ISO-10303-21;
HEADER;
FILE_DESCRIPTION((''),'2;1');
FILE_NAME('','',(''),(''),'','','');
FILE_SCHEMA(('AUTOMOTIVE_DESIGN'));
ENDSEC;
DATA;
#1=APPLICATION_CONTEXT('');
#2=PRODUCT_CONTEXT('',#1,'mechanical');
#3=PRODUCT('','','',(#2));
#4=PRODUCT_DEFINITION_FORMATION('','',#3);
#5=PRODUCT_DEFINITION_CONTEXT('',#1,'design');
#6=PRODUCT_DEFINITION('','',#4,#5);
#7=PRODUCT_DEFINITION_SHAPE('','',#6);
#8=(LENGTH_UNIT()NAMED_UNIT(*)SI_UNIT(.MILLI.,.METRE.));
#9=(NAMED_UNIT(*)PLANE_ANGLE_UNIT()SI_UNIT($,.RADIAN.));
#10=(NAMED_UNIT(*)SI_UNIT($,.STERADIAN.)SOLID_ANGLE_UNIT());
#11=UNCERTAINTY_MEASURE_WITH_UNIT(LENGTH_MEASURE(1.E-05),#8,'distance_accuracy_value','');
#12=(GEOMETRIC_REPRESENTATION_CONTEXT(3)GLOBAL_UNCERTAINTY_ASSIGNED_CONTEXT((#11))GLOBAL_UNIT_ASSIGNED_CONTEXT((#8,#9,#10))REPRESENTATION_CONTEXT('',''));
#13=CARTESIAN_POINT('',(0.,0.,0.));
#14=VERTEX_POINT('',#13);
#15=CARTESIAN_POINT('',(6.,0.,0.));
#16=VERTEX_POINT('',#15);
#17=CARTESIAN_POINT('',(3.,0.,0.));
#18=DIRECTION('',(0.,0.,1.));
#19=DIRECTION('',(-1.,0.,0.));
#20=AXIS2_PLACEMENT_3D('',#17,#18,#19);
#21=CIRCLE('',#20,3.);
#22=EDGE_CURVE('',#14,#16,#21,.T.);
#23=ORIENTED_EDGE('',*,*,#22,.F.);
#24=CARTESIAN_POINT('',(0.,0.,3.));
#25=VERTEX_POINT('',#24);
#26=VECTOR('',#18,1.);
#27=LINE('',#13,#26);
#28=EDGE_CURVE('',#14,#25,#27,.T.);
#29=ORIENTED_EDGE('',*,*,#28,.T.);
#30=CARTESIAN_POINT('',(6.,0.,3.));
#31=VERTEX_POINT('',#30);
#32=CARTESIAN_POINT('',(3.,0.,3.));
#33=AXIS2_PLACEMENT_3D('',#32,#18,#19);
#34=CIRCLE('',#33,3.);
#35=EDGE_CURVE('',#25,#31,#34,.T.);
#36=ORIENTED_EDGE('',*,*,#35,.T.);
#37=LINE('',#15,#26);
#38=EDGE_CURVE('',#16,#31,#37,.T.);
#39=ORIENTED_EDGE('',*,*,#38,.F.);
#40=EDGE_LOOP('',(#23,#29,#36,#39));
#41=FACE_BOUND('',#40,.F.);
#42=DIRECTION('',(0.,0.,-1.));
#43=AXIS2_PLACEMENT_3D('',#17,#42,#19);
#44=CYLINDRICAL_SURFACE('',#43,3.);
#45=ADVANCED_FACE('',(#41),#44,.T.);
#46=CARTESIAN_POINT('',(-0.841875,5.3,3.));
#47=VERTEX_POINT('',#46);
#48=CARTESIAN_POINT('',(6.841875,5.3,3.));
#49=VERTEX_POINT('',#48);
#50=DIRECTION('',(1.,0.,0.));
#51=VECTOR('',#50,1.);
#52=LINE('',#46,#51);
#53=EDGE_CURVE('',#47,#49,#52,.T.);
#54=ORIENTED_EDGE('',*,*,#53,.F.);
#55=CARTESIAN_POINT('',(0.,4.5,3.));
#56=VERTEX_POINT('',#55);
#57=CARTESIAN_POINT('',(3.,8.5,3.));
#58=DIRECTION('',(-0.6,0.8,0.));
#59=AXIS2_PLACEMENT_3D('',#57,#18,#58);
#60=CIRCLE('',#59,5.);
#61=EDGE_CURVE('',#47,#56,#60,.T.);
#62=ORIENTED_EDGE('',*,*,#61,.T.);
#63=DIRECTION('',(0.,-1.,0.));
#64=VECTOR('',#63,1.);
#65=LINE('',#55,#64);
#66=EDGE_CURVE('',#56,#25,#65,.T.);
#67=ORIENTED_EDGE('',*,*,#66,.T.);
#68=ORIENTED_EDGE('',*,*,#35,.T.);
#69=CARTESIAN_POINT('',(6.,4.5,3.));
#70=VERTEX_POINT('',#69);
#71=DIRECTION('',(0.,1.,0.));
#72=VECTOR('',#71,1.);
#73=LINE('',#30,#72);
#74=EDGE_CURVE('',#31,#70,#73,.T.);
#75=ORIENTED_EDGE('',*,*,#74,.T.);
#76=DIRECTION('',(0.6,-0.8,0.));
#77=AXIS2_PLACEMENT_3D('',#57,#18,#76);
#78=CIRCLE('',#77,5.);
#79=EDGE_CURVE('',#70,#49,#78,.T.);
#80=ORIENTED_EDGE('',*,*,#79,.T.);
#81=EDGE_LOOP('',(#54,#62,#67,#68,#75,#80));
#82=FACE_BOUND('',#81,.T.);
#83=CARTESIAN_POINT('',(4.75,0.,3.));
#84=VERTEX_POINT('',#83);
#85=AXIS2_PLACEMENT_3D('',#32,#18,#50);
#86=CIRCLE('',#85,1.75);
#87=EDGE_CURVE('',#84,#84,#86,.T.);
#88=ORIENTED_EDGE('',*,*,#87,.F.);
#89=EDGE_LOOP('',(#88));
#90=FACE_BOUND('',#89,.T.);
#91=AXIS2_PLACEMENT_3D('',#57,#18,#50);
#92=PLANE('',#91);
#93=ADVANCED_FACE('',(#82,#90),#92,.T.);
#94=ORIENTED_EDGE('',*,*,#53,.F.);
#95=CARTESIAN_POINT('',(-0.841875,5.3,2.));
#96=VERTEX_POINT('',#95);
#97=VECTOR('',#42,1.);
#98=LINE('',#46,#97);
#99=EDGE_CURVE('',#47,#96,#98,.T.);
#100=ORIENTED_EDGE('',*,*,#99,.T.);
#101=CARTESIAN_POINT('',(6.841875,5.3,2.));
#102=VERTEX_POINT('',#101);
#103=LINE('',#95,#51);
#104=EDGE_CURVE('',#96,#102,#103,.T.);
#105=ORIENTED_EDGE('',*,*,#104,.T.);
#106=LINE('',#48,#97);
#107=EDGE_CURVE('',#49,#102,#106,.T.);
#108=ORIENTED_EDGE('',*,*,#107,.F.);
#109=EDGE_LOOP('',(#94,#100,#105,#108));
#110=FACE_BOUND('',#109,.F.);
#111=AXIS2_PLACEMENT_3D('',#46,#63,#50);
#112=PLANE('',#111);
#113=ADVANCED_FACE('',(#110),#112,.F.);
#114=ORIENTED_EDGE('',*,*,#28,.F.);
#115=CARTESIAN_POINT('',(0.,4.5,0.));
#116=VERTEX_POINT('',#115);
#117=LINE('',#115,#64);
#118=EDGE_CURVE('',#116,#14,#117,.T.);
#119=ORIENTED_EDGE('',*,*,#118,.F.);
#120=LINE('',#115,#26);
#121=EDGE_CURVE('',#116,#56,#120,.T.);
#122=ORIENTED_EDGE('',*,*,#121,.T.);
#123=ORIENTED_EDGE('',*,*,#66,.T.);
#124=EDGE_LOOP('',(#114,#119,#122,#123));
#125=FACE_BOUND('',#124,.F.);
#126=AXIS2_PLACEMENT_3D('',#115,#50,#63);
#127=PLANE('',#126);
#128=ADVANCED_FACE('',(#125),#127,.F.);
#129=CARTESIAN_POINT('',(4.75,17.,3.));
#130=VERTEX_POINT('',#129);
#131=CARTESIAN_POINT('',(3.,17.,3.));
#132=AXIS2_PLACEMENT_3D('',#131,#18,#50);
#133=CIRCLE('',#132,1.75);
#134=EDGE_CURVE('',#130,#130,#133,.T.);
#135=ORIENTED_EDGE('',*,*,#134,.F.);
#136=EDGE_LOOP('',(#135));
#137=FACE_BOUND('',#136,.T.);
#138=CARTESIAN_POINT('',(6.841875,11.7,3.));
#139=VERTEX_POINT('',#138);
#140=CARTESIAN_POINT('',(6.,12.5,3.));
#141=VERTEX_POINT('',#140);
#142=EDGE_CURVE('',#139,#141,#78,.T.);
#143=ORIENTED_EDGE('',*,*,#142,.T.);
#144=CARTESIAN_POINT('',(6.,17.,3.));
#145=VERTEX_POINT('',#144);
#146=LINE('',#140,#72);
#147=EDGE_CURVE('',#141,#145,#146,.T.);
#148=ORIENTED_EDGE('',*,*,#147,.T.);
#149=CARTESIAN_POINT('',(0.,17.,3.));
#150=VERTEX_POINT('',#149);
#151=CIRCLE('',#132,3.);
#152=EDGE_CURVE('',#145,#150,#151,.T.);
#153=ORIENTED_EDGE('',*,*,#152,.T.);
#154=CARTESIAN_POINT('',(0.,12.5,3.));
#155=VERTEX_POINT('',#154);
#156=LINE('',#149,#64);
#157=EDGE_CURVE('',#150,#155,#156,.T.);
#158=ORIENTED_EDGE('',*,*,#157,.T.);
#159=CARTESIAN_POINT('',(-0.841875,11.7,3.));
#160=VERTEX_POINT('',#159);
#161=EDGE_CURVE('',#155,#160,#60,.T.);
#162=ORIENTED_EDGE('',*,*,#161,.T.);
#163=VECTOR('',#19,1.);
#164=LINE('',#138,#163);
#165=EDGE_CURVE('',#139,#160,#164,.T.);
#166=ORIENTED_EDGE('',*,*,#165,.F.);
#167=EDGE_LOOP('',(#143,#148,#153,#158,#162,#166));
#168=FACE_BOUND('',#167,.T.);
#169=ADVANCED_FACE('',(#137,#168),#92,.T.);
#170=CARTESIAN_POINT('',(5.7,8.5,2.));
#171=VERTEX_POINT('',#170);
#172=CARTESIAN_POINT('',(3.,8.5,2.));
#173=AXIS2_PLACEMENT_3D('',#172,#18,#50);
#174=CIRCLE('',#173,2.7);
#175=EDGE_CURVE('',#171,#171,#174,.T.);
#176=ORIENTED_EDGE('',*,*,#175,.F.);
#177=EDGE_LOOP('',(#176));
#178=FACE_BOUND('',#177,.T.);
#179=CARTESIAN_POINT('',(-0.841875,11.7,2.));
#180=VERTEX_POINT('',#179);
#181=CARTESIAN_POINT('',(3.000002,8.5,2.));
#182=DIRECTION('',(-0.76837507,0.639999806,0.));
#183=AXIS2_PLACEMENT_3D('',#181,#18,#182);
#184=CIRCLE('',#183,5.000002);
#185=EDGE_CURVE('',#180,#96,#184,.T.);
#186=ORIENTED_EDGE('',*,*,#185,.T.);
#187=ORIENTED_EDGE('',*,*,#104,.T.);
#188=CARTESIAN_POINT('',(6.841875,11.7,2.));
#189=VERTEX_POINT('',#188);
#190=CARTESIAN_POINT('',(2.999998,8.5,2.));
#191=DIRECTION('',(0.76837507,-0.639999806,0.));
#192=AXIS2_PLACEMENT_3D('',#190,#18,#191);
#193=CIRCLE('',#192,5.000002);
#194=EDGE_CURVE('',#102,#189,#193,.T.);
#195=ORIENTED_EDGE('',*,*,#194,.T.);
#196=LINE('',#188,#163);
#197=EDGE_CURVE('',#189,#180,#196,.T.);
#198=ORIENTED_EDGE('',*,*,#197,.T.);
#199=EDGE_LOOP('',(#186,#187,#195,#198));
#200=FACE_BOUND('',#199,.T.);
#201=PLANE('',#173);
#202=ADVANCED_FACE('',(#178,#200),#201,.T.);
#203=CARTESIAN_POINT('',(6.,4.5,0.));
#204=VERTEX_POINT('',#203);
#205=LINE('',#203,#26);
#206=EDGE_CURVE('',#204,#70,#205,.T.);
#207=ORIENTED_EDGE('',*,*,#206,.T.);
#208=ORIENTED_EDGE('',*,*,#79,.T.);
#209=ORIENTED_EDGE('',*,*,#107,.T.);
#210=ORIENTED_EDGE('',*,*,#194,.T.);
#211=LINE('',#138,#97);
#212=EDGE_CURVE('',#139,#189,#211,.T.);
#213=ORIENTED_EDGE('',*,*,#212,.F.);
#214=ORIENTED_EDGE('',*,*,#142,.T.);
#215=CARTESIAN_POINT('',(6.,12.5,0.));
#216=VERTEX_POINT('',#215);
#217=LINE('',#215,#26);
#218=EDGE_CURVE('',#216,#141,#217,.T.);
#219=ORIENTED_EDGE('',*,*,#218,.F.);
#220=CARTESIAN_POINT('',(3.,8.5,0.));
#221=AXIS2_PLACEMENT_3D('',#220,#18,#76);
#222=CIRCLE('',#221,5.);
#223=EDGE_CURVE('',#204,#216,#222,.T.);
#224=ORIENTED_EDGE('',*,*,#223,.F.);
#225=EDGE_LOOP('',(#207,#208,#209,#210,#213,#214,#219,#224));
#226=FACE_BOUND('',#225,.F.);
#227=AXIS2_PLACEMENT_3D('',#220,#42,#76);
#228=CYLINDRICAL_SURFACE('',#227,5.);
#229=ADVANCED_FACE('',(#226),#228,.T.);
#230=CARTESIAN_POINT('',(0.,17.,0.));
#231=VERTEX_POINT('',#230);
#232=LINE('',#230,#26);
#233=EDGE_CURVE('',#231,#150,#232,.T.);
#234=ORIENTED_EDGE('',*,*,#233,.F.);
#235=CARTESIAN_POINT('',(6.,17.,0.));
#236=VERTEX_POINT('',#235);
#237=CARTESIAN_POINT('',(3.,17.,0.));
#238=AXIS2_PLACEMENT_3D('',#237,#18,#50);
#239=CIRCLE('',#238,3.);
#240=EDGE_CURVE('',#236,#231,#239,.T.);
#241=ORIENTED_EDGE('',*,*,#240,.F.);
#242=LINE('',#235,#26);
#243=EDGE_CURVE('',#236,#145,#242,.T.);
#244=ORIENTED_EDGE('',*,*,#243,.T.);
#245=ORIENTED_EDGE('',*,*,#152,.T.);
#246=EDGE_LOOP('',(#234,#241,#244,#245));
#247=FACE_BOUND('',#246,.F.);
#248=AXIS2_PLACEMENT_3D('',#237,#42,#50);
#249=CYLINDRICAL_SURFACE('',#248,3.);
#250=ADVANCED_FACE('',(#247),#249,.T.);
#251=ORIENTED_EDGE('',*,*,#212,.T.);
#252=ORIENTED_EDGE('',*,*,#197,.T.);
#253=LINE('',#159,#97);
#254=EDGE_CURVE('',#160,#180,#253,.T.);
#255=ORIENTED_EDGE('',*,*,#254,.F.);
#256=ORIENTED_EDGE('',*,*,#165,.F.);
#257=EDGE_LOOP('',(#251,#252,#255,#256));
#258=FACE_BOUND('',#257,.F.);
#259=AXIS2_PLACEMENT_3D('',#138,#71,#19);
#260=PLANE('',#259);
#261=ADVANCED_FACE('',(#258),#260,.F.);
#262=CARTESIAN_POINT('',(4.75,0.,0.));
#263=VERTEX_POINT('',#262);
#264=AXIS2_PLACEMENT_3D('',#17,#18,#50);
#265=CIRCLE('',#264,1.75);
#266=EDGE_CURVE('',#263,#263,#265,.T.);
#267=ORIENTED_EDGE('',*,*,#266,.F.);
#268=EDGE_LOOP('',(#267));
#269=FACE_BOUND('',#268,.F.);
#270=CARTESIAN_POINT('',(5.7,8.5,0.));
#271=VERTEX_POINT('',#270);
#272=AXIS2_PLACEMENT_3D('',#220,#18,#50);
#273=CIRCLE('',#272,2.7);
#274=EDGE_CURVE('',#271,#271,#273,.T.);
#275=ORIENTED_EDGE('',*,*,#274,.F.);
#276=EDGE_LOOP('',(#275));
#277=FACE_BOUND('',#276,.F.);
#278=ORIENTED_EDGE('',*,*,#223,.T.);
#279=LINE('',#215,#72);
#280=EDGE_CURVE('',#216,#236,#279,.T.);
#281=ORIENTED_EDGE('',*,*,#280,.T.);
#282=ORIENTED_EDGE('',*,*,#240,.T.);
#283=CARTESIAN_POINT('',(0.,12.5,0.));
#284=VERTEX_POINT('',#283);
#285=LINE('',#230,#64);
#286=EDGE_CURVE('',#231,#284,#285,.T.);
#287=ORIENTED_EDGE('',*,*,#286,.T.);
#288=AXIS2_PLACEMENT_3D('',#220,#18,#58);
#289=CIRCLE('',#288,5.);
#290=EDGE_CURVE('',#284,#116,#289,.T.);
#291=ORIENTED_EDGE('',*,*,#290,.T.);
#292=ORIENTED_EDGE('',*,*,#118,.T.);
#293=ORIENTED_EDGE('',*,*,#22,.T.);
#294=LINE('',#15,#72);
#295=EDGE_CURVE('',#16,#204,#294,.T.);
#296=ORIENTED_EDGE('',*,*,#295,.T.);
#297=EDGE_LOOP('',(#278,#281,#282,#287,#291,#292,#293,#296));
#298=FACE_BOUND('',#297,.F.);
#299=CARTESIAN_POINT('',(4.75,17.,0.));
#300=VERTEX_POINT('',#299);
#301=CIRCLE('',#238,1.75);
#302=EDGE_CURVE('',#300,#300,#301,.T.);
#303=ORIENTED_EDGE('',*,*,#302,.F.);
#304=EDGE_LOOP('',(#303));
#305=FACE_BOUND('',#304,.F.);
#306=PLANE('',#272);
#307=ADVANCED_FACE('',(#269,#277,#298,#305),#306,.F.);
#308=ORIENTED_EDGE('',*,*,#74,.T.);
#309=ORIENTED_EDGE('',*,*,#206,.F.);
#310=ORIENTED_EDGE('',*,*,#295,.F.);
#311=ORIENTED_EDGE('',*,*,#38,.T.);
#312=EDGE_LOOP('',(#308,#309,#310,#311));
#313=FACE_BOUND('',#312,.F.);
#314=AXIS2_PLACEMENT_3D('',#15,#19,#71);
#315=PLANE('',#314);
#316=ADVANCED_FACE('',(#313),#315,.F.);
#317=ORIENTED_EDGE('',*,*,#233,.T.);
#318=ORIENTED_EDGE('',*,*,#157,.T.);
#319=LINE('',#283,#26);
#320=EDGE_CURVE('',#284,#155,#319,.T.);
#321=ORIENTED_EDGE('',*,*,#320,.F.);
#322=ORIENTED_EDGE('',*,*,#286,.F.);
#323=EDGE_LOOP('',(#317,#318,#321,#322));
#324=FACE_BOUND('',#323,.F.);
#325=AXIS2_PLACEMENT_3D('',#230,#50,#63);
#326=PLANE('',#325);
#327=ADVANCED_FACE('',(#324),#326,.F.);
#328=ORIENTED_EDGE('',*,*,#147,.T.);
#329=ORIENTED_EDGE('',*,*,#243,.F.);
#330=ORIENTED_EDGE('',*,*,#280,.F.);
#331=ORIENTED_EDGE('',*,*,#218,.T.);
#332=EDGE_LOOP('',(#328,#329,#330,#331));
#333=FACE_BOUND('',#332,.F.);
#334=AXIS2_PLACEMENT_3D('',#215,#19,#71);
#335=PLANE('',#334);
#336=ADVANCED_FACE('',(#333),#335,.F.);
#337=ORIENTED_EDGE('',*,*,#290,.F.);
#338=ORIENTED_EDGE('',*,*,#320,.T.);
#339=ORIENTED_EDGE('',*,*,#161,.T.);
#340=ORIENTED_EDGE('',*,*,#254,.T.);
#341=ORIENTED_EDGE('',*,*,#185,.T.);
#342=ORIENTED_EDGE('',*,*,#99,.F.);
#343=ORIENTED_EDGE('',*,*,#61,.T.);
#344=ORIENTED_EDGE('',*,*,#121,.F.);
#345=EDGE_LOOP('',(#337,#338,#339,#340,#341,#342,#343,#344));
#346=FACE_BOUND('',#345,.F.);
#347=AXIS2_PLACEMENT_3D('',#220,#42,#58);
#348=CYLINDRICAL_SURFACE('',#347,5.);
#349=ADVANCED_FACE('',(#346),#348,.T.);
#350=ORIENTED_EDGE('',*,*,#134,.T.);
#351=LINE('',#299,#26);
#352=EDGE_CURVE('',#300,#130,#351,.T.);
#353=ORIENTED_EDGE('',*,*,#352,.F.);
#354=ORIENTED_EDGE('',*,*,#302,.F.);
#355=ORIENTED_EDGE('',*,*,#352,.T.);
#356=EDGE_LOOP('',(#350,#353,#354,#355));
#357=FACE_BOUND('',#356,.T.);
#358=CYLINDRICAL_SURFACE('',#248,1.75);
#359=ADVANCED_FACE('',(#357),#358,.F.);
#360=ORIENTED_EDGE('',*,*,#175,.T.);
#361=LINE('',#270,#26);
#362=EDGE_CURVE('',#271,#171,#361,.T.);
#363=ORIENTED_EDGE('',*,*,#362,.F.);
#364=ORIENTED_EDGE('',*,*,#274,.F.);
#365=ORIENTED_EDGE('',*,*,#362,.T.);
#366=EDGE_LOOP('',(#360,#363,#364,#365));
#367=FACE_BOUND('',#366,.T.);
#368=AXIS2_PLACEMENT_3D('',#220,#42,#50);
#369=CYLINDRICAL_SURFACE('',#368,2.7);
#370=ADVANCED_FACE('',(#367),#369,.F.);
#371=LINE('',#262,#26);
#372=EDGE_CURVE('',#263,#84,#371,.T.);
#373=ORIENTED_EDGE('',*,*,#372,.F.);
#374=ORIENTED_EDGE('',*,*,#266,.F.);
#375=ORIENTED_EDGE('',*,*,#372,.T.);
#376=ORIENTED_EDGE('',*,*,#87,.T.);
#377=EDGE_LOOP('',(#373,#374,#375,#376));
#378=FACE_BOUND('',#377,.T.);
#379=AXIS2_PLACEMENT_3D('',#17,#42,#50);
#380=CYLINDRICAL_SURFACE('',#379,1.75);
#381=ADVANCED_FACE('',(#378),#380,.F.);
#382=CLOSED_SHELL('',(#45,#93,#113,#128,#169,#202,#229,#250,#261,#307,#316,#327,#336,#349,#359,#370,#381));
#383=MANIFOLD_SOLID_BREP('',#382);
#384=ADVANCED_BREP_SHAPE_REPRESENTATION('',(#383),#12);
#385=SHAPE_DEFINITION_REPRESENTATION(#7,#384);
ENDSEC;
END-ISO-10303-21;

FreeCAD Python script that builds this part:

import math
import FreeCAD as App
import Part
import Sketcher
Q = App.Units.Quantity

doc = App.newDocument("Part")
params = doc.addObject("Spreadsheet::Sheet", "Params")
for row, (alias, value) in enumerate([
    ("sketch1_radius", "3 mm"),
    ("sketch1_radius2", "5 mm"),
    ("sketch1_diameter", "3.5 mm"),
    ("sketch1_diameter2", "5.4 mm"),
    ("sketch1_height", "4.5 mm"),
    ("pad1_length", "3 mm"),
    ("sketch2_radius", "5.000002 mm"),
    ("sketch2_diameter", "5.4 mm"),
    ("pocket1_length", "1 mm"),
], start=1):
    params.set(f"A{row}", alias)
    params.set(f"B{row}", "=" + value)
    params.setAlias(f"B{row}", alias)

body = doc.addObject("PartDesign::Body", "Body")

# Sketch on XY plane
sketch1 = body.newObject("Sketcher::SketchObject", "Sketch")
sketch1.AttachmentSupport = (doc.getObject("XY_Plane"), [""])
sketch1.MapMode = "FlatFace"
sketch1.addGeometry(Part.LineSegment(App.Vector(0, 4.5, 0), App.Vector(0, 0, 0)), False)
sketch1.addGeometry(Part.ArcOfCircle(Part.Circle(App.Vector(3, 0, 0), App.Vector(0, 0, 1), 3), math.radians(180), math.radians(360)), False)
sketch1.addGeometry(Part.LineSegment(App.Vector(6, 0, 0), App.Vector(6, 4.5, 0)), False)
sketch1.addGeometry(Part.ArcOfCircle(Part.Circle(App.Vector(3, 8.5, 0), App.Vector(0, 0, 1), 5), math.radians(-53), math.radians(53)), False)
sketch1.addGeometry(Part.LineSegment(App.Vector(6, 12.5, 0), App.Vector(6, 17, 0)), False)
sketch1.addGeometry(Part.ArcOfCircle(Part.Circle(App.Vector(3, 17, 0), App.Vector(0, 0, 1), 3), math.radians(0), math.radians(180)), False)
sketch1.addGeometry(Part.LineSegment(App.Vector(0, 17, 0), App.Vector(0, 12.5, 0)), False)
sketch1.addGeometry(Part.ArcOfCircle(Part.Circle(App.Vector(3, 8.5, 0), App.Vector(0, 0, 1), 5), math.radians(127), math.radians(233)), False)
sketch1.addGeometry(Part.Circle(App.Vector(3, 0, 0), App.Vector(0, 0, 1), 1.8), False)
sketch1.addGeometry(Part.Circle(App.Vector(3, 8.5, 0), App.Vector(0, 0, 1), 2.7), False)
sketch1.addGeometry(Part.Circle(App.Vector(3, 17, 0), App.Vector(0, 0, 1), 1.8), False)
sketch1.addConstraint(Sketcher.Constraint("Tangent", 0, 2, 1, 1))
sketch1.addConstraint(Sketcher.Constraint("Tangent", 1, 2, 2, 1))
sketch1.addConstraint(Sketcher.Constraint("Coincident", 2, 2, 3, 1))
sketch1.addConstraint(Sketcher.Constraint("Coincident", 3, 2, 4, 1))
sketch1.addConstraint(Sketcher.Constraint("Tangent", 4, 2, 5, 1))
sketch1.addConstraint(Sketcher.Constraint("Tangent", 5, 2, 6, 1))
sketch1.addConstraint(Sketcher.Constraint("Coincident", 6, 2, 7, 1))
sketch1.addConstraint(Sketcher.Constraint("Coincident", 7, 2, 0, 1))
sketch1.addConstraint(Sketcher.Constraint("Vertical", 0))
sketch1.addConstraint(Sketcher.Constraint("Vertical", 2))
sketch1.addConstraint(Sketcher.Constraint("Vertical", 4))
sketch1.addConstraint(Sketcher.Constraint("Vertical", 6))
sketch1.addConstraint(Sketcher.Constraint("Coincident", 0, 2, -1, 1))
sketch1.addConstraint(Sketcher.Constraint("Coincident", 7, 3, 3, 3))
sketch1.addConstraint(Sketcher.Constraint("Coincident", 8, 3, 1, 3))
sketch1.addConstraint(Sketcher.Constraint("Coincident", 9, 3, 3, 3))
sketch1.addConstraint(Sketcher.Constraint("Coincident", 10, 3, 5, 3))
sketch1.addConstraint(Sketcher.Constraint("Equal", 1, 5))
sketch1.addConstraint(Sketcher.Constraint("Equal", 3, 7))
sketch1.addConstraint(Sketcher.Constraint("Equal", 8, 10))
sketch1.addConstraint(Sketcher.Constraint("PointOnObject", 5, 2, -2))
sketch1.addConstraint(Sketcher.Constraint("Horizontal", 3, 2, 6, 2))
sketch1.addConstraint(Sketcher.Constraint("Equal", 2, 4))
sketch1.addConstraint(Sketcher.Constraint("Radius", 1, Q("3 mm")))
sketch1.addConstraint(Sketcher.Constraint("Radius", 3, Q("5 mm")))
sketch1.addConstraint(Sketcher.Constraint("Diameter", 8, Q("3.5 mm")))
sketch1.addConstraint(Sketcher.Constraint("Diameter", 9, Q("5.4 mm")))
sketch1.addConstraint(Sketcher.Constraint("DistanceY", 0, 2, 0, 1, Q("4.5 mm")))
sketch1.setExpression("Constraints[23]", "Params.sketch1_radius")
sketch1.setExpression("Constraints[24]", "Params.sketch1_radius2")
sketch1.setExpression("Constraints[25]", "Params.sketch1_diameter")
sketch1.setExpression("Constraints[26]", "Params.sketch1_diameter2")
sketch1.setExpression("Constraints[27]", "Params.sketch1_height")
pad1 = body.newObject("PartDesign::Pad", "Pad")
pad1.Profile = sketch1
pad1.setExpression("Length", "Params.pad1_length")

# Sketch on XY plane
sketch2 = body.newObject("Sketcher::SketchObject", "Sketch001")
sketch2.AttachmentSupport = (doc.getObject("XY_Plane"), [""])
sketch2.MapMode = "FlatFace"
sketch2.AttachmentOffset = App.Placement(App.Vector(0, 0, 3), App.Rotation())
sketch2.addGeometry(Part.LineSegment(App.Vector(6.8, 11.7, 0), App.Vector(-0.8, 11.7, 0)), False)
sketch2.addGeometry(Part.ArcOfCircle(Part.Circle(App.Vector(3, 8.5, 0), App.Vector(0, 0, 1), 5), math.radians(140), math.radians(220)), False)
sketch2.addGeometry(Part.LineSegment(App.Vector(-0.8, 5.3, 0), App.Vector(6.8, 5.3, 0)), False)
sketch2.addGeometry(Part.ArcOfCircle(Part.Circle(App.Vector(3, 8.5, 0), App.Vector(0, 0, 1), 5), math.radians(-40), math.radians(40)), False)
sketch2.addGeometry(Part.Circle(App.Vector(3, 8.5, 0), App.Vector(0, 0, 1), 2.7), False)
sketch2.addConstraint(Sketcher.Constraint("Coincident", 0, 2, 1, 1))
sketch2.addConstraint(Sketcher.Constraint("Coincident", 1, 2, 2, 1))
sketch2.addConstraint(Sketcher.Constraint("Coincident", 2, 2, 3, 1))
sketch2.addConstraint(Sketcher.Constraint("Coincident", 3, 2, 0, 1))
sketch2.addConstraint(Sketcher.Constraint("Horizontal", 0))
sketch2.addConstraint(Sketcher.Constraint("Horizontal", 2))
sketch2.addConstraint(Sketcher.Constraint("Coincident", 3, 3, 1, 3))
sketch2.addConstraint(Sketcher.Constraint("Coincident", 4, 3, 1, 3))
sketch2.addConstraint(Sketcher.Constraint("Equal", 1, 3))
sketch2.addConstraint(Sketcher.Constraint("Vertical", 0, 2, 1, 2))
sketch2.addConstraint(Sketcher.Constraint("Radius", 1, Q("5.000002 mm")))
sketch2.addConstraint(Sketcher.Constraint("Diameter", 4, Q("5.4 mm")))
sketch2.addConstraint(Sketcher.Constraint("DistanceX", -1, 1, 1, 3, Q("3.000002 mm")))
sketch2.addConstraint(Sketcher.Constraint("DistanceY", -1, 1, 1, 3, Q("8.5 mm")))
sketch2.addConstraint(Sketcher.Constraint("DistanceY", -1, 1, 0, 2, Q("11.7 mm")))
sketch2.setExpression("Constraints[10]", "Params.sketch2_radius")
sketch2.setExpression("Constraints[11]", "Params.sketch2_diameter")
pocket1 = body.newObject("PartDesign::Pocket", "Pocket")
pocket1.Profile = sketch2
pocket1.setExpression("Length", "Params.pocket1_length")

doc.recompute()
